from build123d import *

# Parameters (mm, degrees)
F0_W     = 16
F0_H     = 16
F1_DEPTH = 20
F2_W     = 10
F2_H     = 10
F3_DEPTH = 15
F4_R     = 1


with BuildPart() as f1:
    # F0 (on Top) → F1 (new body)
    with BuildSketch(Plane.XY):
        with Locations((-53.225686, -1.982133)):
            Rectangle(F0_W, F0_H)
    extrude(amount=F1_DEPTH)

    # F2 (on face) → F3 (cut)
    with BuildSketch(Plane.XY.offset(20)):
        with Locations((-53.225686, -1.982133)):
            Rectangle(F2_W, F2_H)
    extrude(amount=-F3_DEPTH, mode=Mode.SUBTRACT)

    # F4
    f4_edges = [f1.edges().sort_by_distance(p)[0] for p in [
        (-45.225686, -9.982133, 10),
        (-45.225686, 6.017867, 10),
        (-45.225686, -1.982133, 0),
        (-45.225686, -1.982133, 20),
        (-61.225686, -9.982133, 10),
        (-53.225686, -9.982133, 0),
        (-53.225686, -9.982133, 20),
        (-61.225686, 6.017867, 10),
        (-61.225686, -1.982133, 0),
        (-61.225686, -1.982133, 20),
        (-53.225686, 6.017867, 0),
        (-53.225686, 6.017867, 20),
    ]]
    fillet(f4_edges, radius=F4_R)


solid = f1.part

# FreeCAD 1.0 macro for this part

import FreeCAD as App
import Part
import Sketcher
from FreeCAD import Vector
Q = App.Units.Quantity


def edges_at(feature, points):
    """Names of the edges that pass closest to the given points."""
    edges = feature.Shape.Edges
    near = lambda p: min(range(len(edges)), key=lambda i: edges[i].distToShape(Part.Vertex(*p))[0])
    return sorted({f"Edge{near(p) + 1}" for p in points})


def add_polygon(sketch, points):
    """Adds a closed chain of lines whose ends are joined by coincident constraints."""
    first, n = sketch.GeometryCount, len(points)
    for a, b in zip(points, points[1:] + points[:1]):
        sketch.addGeometry(Part.LineSegment(App.Vector(*a, 0), App.Vector(*b, 0)), False)
    for i in range(n):
        sketch.addConstraint(Sketcher.Constraint("Coincident", first + i, 2, first + (i + 1) % n, 1))

doc = App.newDocument("Part")
params = doc.addObject("Spreadsheet::Sheet", "Params")
for row, (alias, value) in enumerate([
    ("sketch1_width", "16 mm"),
    ("pad1_length", "20 mm"),
    ("sketch2_width", "10 mm"),
    ("pocket1_length", "15 mm"),
    ("fillet_radius", "1 mm"),
], start=1):
    params.set(f"A{row}", alias)
    params.set(f"B{row}", "=" + value)
    params.setAlias(f"B{row}", alias)

body = doc.addObject("PartDesign::Body", "Body")

# Sketch on XY plane
sketch1 = body.newObject("Sketcher::SketchObject", "Sketch")
sketch1.AttachmentSupport = (doc.getObject("XY_Plane"), [""])
sketch1.MapMode = "FlatFace"
add_polygon(sketch1, [(-61.225686, 6.017867), (-61.225686, -9.982133), (-45.225686, -9.982133), (-45.225686, 6.017867)])  # lines 0-3
sketch1.addConstraint([
    Sketcher.Constraint("Vertical", 0),
    Sketcher.Constraint("Horizontal", 1),
    Sketcher.Constraint("Vertical", 2),
    Sketcher.Constraint("Horizontal", 3),
    Sketcher.Constraint("Equal", 3, 0),
    Sketcher.Constraint("DistanceX", 1, 1, 1, 2, Q("16 mm")),
    Sketcher.Constraint("DistanceX", 0, 2, -1, 1, Q("61.225686 mm")),
    Sketcher.Constraint("DistanceY", 0, 2, -1, 1, Q("9.982133 mm")),
])
sketch1.setExpression("Constraints[9]", "Params.sketch1_width")
pad1 = body.newObject("PartDesign::Pad", "Pad")
pad1.Profile = sketch1
pad1.setExpression("Length", "Params.pad1_length")

# Sketch on XY plane
sketch2 = body.newObject("Sketcher::SketchObject", "Sketch001")
sketch2.AttachmentSupport = (doc.getObject("XY_Plane"), [""])
sketch2.MapMode = "FlatFace"
sketch2.AttachmentOffset = App.Placement(Vector(0, 0, 20), App.Rotation())
add_polygon(sketch2, [(-58.225686, 3.017867), (-58.225686, -6.982133), (-48.225686, -6.982133), (-48.225686, 3.017867)])  # lines 0-3
sketch2.addConstraint([
    Sketcher.Constraint("Vertical", 0),
    Sketcher.Constraint("Horizontal", 1),
    Sketcher.Constraint("Vertical", 2),
    Sketcher.Constraint("Horizontal", 3),
    Sketcher.Constraint("Equal", 3, 0),
    Sketcher.Constraint("DistanceX", 1, 1, 1, 2, Q("10 mm")),
    Sketcher.Constraint("DistanceX", 0, 2, -1, 1, Q("58.225686 mm")),
    Sketcher.Constraint("DistanceY", 0, 2, -1, 1, Q("6.982133 mm")),
])
sketch2.setExpression("Constraints[9]", "Params.sketch2_width")
pocket1 = body.newObject("PartDesign::Pocket", "Pocket")
pocket1.Profile = sketch2
pocket1.setExpression("Length", "Params.pocket1_length")
doc.recompute()

fillet = body.newObject("PartDesign::Fillet", "Fillet")
fillet.Base = (pocket1, edges_at(pocket1, [
    (-45.226, -9.982, 10),
    (-45.226, 6.018, 10),
    (-45.226, -1.982, 0),
    (-45.226, -1.982, 20),
    (-61.226, -9.982, 10),
    (-53.226, -9.982, 0),
    (-53.226, -9.982, 20),
    (-61.226, 6.018, 10),
    (-61.226, -1.982, 0),
    (-61.226, -1.982, 20),
    (-53.226, 6.018, 0),
    (-53.226, 6.018, 20),
]))
fillet.setExpression("Radius", "Params.fillet_radius")

doc.recompute()
